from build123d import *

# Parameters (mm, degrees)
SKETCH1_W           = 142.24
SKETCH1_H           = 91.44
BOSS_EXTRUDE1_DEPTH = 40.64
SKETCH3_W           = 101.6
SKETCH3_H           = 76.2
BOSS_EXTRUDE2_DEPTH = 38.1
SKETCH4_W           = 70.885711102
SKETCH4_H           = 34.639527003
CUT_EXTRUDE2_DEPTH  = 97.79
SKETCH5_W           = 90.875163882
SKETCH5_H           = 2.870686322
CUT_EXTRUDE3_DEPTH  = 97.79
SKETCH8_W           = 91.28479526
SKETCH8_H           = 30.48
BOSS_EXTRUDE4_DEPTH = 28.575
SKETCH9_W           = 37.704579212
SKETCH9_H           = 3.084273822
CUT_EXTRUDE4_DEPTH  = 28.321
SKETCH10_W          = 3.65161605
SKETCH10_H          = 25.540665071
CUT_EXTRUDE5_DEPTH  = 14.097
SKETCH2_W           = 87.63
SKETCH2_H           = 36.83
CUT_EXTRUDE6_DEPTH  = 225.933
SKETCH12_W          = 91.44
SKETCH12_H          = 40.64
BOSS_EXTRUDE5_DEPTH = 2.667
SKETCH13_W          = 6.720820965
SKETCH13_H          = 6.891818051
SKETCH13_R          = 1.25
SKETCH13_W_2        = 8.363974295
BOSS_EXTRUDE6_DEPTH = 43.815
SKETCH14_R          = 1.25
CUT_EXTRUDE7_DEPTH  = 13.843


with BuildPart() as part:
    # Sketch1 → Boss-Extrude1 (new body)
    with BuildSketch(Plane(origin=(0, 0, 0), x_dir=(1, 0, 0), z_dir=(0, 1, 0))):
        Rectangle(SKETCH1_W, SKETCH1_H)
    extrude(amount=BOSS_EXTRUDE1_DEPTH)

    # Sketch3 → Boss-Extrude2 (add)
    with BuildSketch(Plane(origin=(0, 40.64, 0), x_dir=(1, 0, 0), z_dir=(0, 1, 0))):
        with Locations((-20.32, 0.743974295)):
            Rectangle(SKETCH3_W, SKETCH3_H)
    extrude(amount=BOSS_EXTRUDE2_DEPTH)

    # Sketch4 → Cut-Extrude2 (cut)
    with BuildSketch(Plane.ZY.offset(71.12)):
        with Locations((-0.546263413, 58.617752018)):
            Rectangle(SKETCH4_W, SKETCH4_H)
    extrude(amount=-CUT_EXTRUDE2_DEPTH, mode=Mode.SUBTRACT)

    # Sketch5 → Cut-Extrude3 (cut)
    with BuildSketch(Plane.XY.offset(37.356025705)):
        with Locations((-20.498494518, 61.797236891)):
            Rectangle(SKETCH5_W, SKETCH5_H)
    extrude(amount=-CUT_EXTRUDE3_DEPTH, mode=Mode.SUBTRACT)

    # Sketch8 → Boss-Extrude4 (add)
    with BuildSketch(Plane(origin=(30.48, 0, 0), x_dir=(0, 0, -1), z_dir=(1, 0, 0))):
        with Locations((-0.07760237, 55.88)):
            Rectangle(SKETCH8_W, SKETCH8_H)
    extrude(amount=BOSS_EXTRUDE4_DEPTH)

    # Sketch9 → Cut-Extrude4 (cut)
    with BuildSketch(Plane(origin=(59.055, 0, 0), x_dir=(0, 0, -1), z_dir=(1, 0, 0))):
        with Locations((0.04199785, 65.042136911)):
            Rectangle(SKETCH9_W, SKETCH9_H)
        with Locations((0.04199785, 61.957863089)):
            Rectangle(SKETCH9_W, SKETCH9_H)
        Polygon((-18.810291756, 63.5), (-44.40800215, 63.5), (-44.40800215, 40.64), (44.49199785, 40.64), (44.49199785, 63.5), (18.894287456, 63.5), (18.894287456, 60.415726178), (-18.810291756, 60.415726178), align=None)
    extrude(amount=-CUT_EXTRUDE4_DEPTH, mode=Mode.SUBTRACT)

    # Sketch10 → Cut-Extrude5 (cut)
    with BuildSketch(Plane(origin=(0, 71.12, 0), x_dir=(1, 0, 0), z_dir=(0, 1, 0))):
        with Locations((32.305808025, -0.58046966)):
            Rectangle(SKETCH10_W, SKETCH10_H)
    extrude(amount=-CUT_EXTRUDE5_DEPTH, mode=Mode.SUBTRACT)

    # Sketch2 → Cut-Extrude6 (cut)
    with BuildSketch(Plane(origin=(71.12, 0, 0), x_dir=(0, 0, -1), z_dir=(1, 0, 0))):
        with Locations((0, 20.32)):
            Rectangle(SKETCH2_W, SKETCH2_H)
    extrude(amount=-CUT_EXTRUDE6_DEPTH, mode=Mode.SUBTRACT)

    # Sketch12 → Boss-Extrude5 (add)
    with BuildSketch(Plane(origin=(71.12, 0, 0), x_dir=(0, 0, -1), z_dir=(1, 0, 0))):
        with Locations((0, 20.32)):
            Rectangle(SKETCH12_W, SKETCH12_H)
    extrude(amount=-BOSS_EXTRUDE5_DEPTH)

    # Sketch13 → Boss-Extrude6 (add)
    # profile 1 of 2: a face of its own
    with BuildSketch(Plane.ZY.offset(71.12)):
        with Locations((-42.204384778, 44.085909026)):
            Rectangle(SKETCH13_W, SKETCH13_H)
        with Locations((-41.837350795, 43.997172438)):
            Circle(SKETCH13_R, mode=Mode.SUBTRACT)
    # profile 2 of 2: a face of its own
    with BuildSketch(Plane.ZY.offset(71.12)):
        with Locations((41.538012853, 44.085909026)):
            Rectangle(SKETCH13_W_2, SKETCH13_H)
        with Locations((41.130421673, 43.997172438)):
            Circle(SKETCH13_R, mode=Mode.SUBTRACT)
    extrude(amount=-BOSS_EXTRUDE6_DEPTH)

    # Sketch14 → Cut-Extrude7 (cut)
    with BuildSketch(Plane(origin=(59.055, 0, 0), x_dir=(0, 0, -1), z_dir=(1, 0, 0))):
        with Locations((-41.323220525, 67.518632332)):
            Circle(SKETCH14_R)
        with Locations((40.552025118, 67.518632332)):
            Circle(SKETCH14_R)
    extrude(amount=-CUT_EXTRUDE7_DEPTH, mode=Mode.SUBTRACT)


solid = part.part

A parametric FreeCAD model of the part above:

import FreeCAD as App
import Part
import Sketcher
from FreeCAD import Vector
Q = App.Units.Quantity


def add_polygon(sketch, points):
    """Adds a closed chain of lines whose ends are joined by coincident constraints."""
    first, n = sketch.GeometryCount, len(points)
    for a, b in zip(points, points[1:] + points[:1]):
        sketch.addGeometry(Part.LineSegment(App.Vector(*a, 0), App.Vector(*b, 0)), False)
    for i in range(n):
        sketch.addConstraint(Sketcher.Constraint("Coincident", first + i, 2, first + (i + 1) % n, 1))

doc = App.newDocument("Part")
body = doc.addObject("PartDesign::Body", "Body")

# Sketch on XZ plane
sketch1 = body.newObject("Sketcher::SketchObject", "Sketch")
sketch1.AttachmentSupport = (doc.getObject("XZ_Plane"), [""])
sketch1.MapMode = "FlatFace"
add_polygon(sketch1, [(-71, -46), (-71, 46), (71, 46), (71, -46)])  # lines 0-3
sketch1.addConstraint([
    Sketcher.Constraint("Vertical", 0),
    Sketcher.Constraint("Horizontal", 1),
    Sketcher.Constraint("Vertical", 2),
    Sketcher.Constraint("Horizontal", 3),
    Sketcher.Constraint("Symmetric", 0, 2, 2, 2, -1, 1),
    Sketcher.Constraint("DistanceX", 1, 1, 1, 2, Q("5.6 in")),
    Sketcher.Constraint("DistanceY", 0, 1, 0, 2, Q("3.6 in")),
])
pad1 = body.newObject("PartDesign::Pad", "Pad")
pad1.Profile = sketch1
pad1.Length = Q("1.6 in")
pad1.Reversed = True

# Sketch on XZ plane
sketch2 = body.newObject("Sketcher::SketchObject", "Sketch001")
sketch2.AttachmentSupport = (doc.getObject("XZ_Plane"), [""])
sketch2.MapMode = "FlatFace"
sketch2.AttachmentOffset = App.Placement(Vector(0, 0, -1.6 * 25.4), App.Rotation())
add_polygon(sketch2, [(-71, -39), (-71, 37), (30, 37), (30, -39)])  # lines 0-3
sketch2.addConstraint([
    Sketcher.Constraint("Vertical", 0),
    Sketcher.Constraint("Horizontal", 1),
    Sketcher.Constraint("Vertical", 2),
    Sketcher.Constraint("Horizontal", 3),
    Sketcher.Constraint("DistanceX", 1, 1, 1, 2, Q("4 in")),
    Sketcher.Constraint("DistanceY", 0, 1, 0, 2, Q("3 in")),
    Sketcher.Constraint("DistanceX", 0, 2, -1, 1, Q("2.8 in")),
    Sketcher.Constraint("DistanceY", -1, 1, 0, 2, Q("37.356026 mm")),
])
pad2 = body.newObject("PartDesign::Pad", "Pad001")
pad2.Profile = sketch2
pad2.Length = Q("1.5 in")
pad2.Reversed = True

# Sketch on YZ plane
sketch3 = body.newObject("Sketcher::SketchObject", "Sketch002")
sketch3.AttachmentSupport = (doc.getObject("YZ_Plane"), [""])
sketch3.MapMode = "FlatFace"
sketch3.AttachmentOffset = App.Placement(Vector(0, 0, -2.8 * 25.4), App.Rotation())
add_polygon(sketch3, [(76, -36), (41, -36), (41, 35), (76, 35)])  # lines 0-3
sketch3.addConstraint([
    Sketcher.Constraint("Horizontal", 0),
    Sketcher.Constraint("Vertical", 1),
    Sketcher.Constraint("Horizontal", 2),
    Sketcher.Constraint("Vertical", 3),
    Sketcher.Constraint("DistanceY", 1, 1, 1, 2, Q("70.885711 mm")),
    Sketcher.Constraint("DistanceX", 0, 2, 0, 1, Q("34.639527 mm")),
    Sketcher.Constraint("DistanceX", -1, 1, 0, 2, Q("41.297989 mm")),
    Sketcher.Constraint("DistanceY", 0, 2, -1, 1, Q("35.989119 mm")),
])
pocket1 = body.newObject("PartDesign::Pocket", "Pocket")
pocket1.Profile = sketch3
pocket1.Length = Q("3.85 in")
pocket1.Reversed = True

# Sketch on XY plane
sketch4 = body.newObject("Sketcher::SketchObject", "Sketch003")
sketch4.AttachmentSupport = (doc.getObject("XY_Plane"), [""])
sketch4.MapMode = "FlatFace"
sketch4.AttachmentOffset = App.Placement(Vector(0, 0, 37.356026), App.Rotation())
add_polygon(sketch4, [(-65.9, 63.2), (-65.9, 60.4), (24.9, 60.4), (24.9, 63.2)])  # lines 0-3
sketch4.addConstraint([
    Sketcher.Constraint("Vertical", 0),
    Sketcher.Constraint("Horizontal", 1),
    Sketcher.Constraint("Vertical", 2),
    Sketcher.Constraint("Horizontal", 3),
    Sketcher.Constraint("DistanceX", 1, 1, 1, 2, Q("90.875164 mm")),
    Sketcher.Constraint("DistanceY", 0, 2, 0, 1, Q("2.870686 mm")),
    Sketcher.Constraint("DistanceY", -1, 1, 2, 2, Q("63.23258 mm")),
    Sketcher.Constraint("DistanceX", 0, 2, -1, 1, Q("65.936076 mm")),
])
pocket2 = body.newObject("PartDesign::Pocket", "Pocket001")
pocket2.Profile = sketch4
pocket2.Length = Q("3.85 in")

# Sketch on YZ plane
sketch5 = body.newObject("Sketcher::SketchObject", "Sketch004")
sketch5.AttachmentSupport = (doc.getObject("YZ_Plane"), [""])
sketch5.MapMode = "FlatFace"
sketch5.AttachmentOffset = App.Placement(Vector(0, 0, 1.2 * 25.4), App.Rotation())
add_polygon(sketch5, [(71, 46), (41, 46), (41, -46), (71, -46)])  # lines 0-3
sketch5.addConstraint([
    Sketcher.Constraint("Horizontal", 0),
    Sketcher.Constraint("Vertical", 1),
    Sketcher.Constraint("Horizontal", 2),
    Sketcher.Constraint("Vertical", 3),
    Sketcher.Constraint("DistanceX", 0, 2, 0, 1, Q("1.2 in")),
    Sketcher.Constraint("DistanceX", -1, 1, 0, 2, Q("1.6 in")),
    Sketcher.Constraint("DistanceY", -1, 1, 0, 2, Q("1.8 in")),
    Sketcher.Constraint("DistanceY", 1, 2, 1, 1, Q("91.284795 mm")),
])
pad3 = body.newObject("PartDesign::Pad", "Pad002")
pad3.Profile = sketch5
pad3.Length = Q("1.125 in")

# Sketch on YZ plane
sketch6 = body.newObject("Sketcher::SketchObject", "Sketch005")
sketch6.AttachmentSupport = (doc.getObject("YZ_Plane"), [""])
sketch6.MapMode = "FlatFace"
sketch6.AttachmentOffset = App.Placement(Vector(0, 0, 2.325 * 25.4), App.Rotation())
add_polygon(sketch6, [(66.6, 18.8), (63.5, 18.8), (63.5, 44.4), (40.6, 44.4), (40.6, -44.5), (63.5, -44.5), (63.5, -18.9), (66.6, -18.9)])  # lines 0-7
sketch6.addConstraint([
    Sketcher.Constraint("Horizontal", 0),
    Sketcher.Constraint("Vertical", 1),
    Sketcher.Constraint("Horizontal", 2),
    Sketcher.Constraint("Vertical", 3),
    Sketcher.Constraint("Horizontal", 4),
    Sketcher.Constraint("Vertical", 5),
    Sketcher.Constraint("Horizontal", 6),
    Sketcher.Constraint("Vertical", 7),
    Sketcher.Constraint("Vertical", 1, 2, 4, 2),
    Sketcher.Constraint("Equal", 1, 5),
    Sketcher.Constraint("DistanceX", 2, 2, 2, 1, Q("0.9 in")),
    Sketcher.Constraint("DistanceY", 3, 2, 3, 1, Q("3.5 in")),
    Sketcher.Constraint("DistanceX", -1, 1, 0, 2, Q("2.5 in")),
    Sketcher.Constraint("DistanceY", 1, 1, 1, 2, Q("25.59771 mm")),
    Sketcher.Constraint("DistanceX", 0, 2, 0, 1, Q("3.084274 mm")),
    Sketcher.Constraint("DistanceY", -1, 1, 0, 2, Q("18.810292 mm")),
])
pocket3 = body.newObject("PartDesign::Pocket", "Pocket002")
pocket3.Profile = sketch6
pocket3.Length = Q("1.115 in")

# Sketch on XZ plane
sketch7 = body.newObject("Sketcher::SketchObject", "Sketch006")
sketch7.AttachmentSupport = (doc.getObject("XZ_Plane"), [""])
sketch7.MapMode = "FlatFace"
sketch7.AttachmentOffset = App.Placement(Vector(0, 0, -2.8 * 25.4), App.Rotation())
add_polygon(sketch7, [(30.5, -12.2), (30.5, 13.4), (34.1, 13.4), (34.1, -12.2)])  # lines 0-3
sketch7.addConstraint([
    Sketcher.Constraint("Vertical", 0),
    Sketcher.Constraint("Horizontal", 1),
    Sketcher.Constraint("Vertical", 2),
    Sketcher.Constraint("Horizontal", 3),
    Sketcher.Constraint("DistanceX", -1, 1, 0, 2, Q("1.2 in")),
    Sketcher.Constraint("DistanceX", 1, 1, 1, 2, Q("3.651616 mm")),
    Sketcher.Constraint("DistanceY", 0, 1, 0, 2, Q("25.540665 mm")),
    Sketcher.Constraint("DistanceY", -1, 1, 0, 2, Q("13.350802 mm")),
])
pocket4 = body.newObject("PartDesign::Pocket", "Pocket003")
pocket4.Profile = sketch7
pocket4.Length = Q("0.555 in")
pocket4.Reversed = True

# Sketch on YZ plane
sketch8 = body.newObject("Sketcher::SketchObject", "Sketch007")
sketch8.AttachmentSupport = (doc.getObject("YZ_Plane"), [""])
sketch8.MapMode = "FlatFace"
sketch8.AttachmentOffset = App.Placement(Vector(0, 0, 2.8 * 25.4), App.Rotation())
add_polygon(sketch8, [(39, 44), (2, 44), (2, -44), (39, -44)])  # lines 0-3
sketch8.addConstraint([
    Sketcher.Constraint("Horizontal", 0),
    Sketcher.Constraint("Vertical", 1),
    Sketcher.Constraint("Horizontal", 2),
    Sketcher.Constraint("Vertical", 3),
    Sketcher.Constraint("DistanceX", 0, 2, 0, 1, Q("1.45 in")),
    Sketcher.Constraint("DistanceY", 1, 2, 1, 1, Q("3.45 in")),
    Sketcher.Constraint("DistanceX", -1, 1, 0, 2, Q("0.075 in")),
    Sketcher.Constraint("DistanceY", -1, 1, 0, 2, Q("1.725 in")),
])
pocket5 = body.newObject("PartDesign::Pocket", "Pocket004")
pocket5.Profile = sketch8
pocket5.Length = Q("8.895 in")

# Sketch on YZ plane
sketch9 = body.newObject("Sketcher::SketchObject", "Sketch008")
sketch9.AttachmentSupport = (doc.getObject("YZ_Plane"), [""])
sketch9.MapMode = "FlatFace"
sketch9.AttachmentOffset = App.Placement(Vector(0, 0, 2.8 * 25.4), App.Rotation())
add_polygon(sketch9, [(41, 46), (0, 46), (0, -46), (41, -46)])  # lines 0-3
sketch9.addConstraint([
    Sketcher.Constraint("Horizontal", 0),
    Sketcher.Constraint("Vertical", 1),
    Sketcher.Constraint("Horizontal", 2),
    Sketcher.Constraint("Vertical", 3),
    Sketcher.Constraint("Symmetric", 0, 2, 1, 2, -1, 1),
    Sketcher.Constraint("DistanceX", 0, 2, 0, 1, Q("1.6 in")),
    Sketcher.Constraint("DistanceY", 1, 2, 1, 1, Q("3.6 in")),
])
pad4 = body.newObject("PartDesign::Pad", "Pad003")
pad4.Profile = sketch9
pad4.Length = Q("0.105 in")
pad4.Reversed = True

# Sketch on YZ plane
sketch10 = body.newObject("Sketcher::SketchObject", "Sketch009")
sketch10.AttachmentSupport = (doc.getObject("YZ_Plane"), [""])
sketch10.MapMode = "FlatFace"
sketch10.AttachmentOffset = App.Placement(Vector(0, 0, -2.8 * 25.4), App.Rotation())
add_polygon(sketch10, [(47.5, -45.6), (40.6, -45.6), (40.6, -38.8), (47.5, -38.8)])  # lines 0-3
sketch10.addGeometry(Part.Circle(Vector(44, -41.8, 0), Vector(0, 0, 1), 1.2), False)  # 4
add_polygon(sketch10, [(47.5, 37.4), (40.6, 37.4), (40.6, 45.7), (47.5, 45.7)])  # lines 5-8
sketch10.addGeometry(Part.Circle(Vector(44, 41.1, 0), Vector(0, 0, 1), 1.2), False)  # 9
sketch10.addConstraint([
    Sketcher.Constraint("Horizontal", 0),
    Sketcher.Constraint("Vertical", 1),
    Sketcher.Constraint("Horizontal", 2),
    Sketcher.Constraint("Vertical", 3),
    Sketcher.Constraint("Horizontal", 5),
    Sketcher.Constraint("Vertical", 6),
    Sketcher.Constraint("Horizontal", 7),
    Sketcher.Constraint("Vertical", 8),
    Sketcher.Constraint("Equal", 4, 9),
    Sketcher.Constraint("Vertical", 4, 3, 9, 3),
    Sketcher.Constraint("Vertical", 1, 2, 5, 2),
    Sketcher.Constraint("Vertical", 3, 2, 7, 2),
    Sketcher.Constraint("DistanceY", 1, 2, 5, 2, Q("3 in")),
    Sketcher.Constraint("DistanceX", -1, 1, 0, 2, Q("1.6 in")),
    Sketcher.Constraint("DistanceY", -1, 1, 6, 2, Q("1.8 in")),
    Sketcher.Constraint("Diameter", 4, Q("2.5 mm")),
    Sketcher.Constraint("DistanceX", 0, 2, 0, 1, Q("6.891818 mm")),
    Sketcher.Constraint("DistanceY", 1, 1, 1, 2, Q("6.720821 mm")),
    Sketcher.Constraint("DistanceY", 6, 1, 6, 2, Q("8.363974 mm")),
    Sketcher.Constraint("DistanceY", 4, 3, -1, 1, Q("41.837351 mm")),
    Sketcher.Constraint("DistanceY", -1, 1, 9, 3, Q("41.130422 mm")),
    Sketcher.Constraint("DistanceX", -1, 1, 4, 3, Q("43.997172 mm")),
])
pad5 = body.newObject("PartDesign::Pad", "Pad004")
pad5.Profile = sketch10
pad5.Length = Q("1.725 in")

# Sketch on YZ plane
sketch11 = body.newObject("Sketcher::SketchObject", "Sketch010")
sketch11.AttachmentSupport = (doc.getObject("YZ_Plane"), [""])
sketch11.MapMode = "FlatFace"
sketch11.AttachmentOffset = App.Placement(Vector(0, 0, 2.325 * 25.4), App.Rotation())
sketch11.addGeometry([
    Part.Circle(Vector(67.5, 41.3, 0), Vector(0, 0, 1), 1.2),
    Part.Circle(Vector(67.5, -40.6, 0), Vector(0, 0, 1), 1.2),
], False)
sketch11.addConstraint([
    Sketcher.Constraint("Equal", 0, 1),
    Sketcher.Constraint("Vertical", 0, 3, 1, 3),
    Sketcher.Constraint("Diameter", 0, Q("2.5 mm")),
    Sketcher.Constraint("DistanceY", -1, 1, 0, 3, Q("41.323221 mm")),
    Sketcher.Constraint("DistanceX", -1, 1, 0, 3, Q("67.518632 mm")),
    Sketcher.Constraint("DistanceY", 1, 3, -1, 1, Q("40.552025 mm")),
])
pocket6 = body.newObject("PartDesign::Pocket", "Pocket005")
pocket6.Profile = sketch11
pocket6.Length = Q("0.545 in")

doc.recompute()
